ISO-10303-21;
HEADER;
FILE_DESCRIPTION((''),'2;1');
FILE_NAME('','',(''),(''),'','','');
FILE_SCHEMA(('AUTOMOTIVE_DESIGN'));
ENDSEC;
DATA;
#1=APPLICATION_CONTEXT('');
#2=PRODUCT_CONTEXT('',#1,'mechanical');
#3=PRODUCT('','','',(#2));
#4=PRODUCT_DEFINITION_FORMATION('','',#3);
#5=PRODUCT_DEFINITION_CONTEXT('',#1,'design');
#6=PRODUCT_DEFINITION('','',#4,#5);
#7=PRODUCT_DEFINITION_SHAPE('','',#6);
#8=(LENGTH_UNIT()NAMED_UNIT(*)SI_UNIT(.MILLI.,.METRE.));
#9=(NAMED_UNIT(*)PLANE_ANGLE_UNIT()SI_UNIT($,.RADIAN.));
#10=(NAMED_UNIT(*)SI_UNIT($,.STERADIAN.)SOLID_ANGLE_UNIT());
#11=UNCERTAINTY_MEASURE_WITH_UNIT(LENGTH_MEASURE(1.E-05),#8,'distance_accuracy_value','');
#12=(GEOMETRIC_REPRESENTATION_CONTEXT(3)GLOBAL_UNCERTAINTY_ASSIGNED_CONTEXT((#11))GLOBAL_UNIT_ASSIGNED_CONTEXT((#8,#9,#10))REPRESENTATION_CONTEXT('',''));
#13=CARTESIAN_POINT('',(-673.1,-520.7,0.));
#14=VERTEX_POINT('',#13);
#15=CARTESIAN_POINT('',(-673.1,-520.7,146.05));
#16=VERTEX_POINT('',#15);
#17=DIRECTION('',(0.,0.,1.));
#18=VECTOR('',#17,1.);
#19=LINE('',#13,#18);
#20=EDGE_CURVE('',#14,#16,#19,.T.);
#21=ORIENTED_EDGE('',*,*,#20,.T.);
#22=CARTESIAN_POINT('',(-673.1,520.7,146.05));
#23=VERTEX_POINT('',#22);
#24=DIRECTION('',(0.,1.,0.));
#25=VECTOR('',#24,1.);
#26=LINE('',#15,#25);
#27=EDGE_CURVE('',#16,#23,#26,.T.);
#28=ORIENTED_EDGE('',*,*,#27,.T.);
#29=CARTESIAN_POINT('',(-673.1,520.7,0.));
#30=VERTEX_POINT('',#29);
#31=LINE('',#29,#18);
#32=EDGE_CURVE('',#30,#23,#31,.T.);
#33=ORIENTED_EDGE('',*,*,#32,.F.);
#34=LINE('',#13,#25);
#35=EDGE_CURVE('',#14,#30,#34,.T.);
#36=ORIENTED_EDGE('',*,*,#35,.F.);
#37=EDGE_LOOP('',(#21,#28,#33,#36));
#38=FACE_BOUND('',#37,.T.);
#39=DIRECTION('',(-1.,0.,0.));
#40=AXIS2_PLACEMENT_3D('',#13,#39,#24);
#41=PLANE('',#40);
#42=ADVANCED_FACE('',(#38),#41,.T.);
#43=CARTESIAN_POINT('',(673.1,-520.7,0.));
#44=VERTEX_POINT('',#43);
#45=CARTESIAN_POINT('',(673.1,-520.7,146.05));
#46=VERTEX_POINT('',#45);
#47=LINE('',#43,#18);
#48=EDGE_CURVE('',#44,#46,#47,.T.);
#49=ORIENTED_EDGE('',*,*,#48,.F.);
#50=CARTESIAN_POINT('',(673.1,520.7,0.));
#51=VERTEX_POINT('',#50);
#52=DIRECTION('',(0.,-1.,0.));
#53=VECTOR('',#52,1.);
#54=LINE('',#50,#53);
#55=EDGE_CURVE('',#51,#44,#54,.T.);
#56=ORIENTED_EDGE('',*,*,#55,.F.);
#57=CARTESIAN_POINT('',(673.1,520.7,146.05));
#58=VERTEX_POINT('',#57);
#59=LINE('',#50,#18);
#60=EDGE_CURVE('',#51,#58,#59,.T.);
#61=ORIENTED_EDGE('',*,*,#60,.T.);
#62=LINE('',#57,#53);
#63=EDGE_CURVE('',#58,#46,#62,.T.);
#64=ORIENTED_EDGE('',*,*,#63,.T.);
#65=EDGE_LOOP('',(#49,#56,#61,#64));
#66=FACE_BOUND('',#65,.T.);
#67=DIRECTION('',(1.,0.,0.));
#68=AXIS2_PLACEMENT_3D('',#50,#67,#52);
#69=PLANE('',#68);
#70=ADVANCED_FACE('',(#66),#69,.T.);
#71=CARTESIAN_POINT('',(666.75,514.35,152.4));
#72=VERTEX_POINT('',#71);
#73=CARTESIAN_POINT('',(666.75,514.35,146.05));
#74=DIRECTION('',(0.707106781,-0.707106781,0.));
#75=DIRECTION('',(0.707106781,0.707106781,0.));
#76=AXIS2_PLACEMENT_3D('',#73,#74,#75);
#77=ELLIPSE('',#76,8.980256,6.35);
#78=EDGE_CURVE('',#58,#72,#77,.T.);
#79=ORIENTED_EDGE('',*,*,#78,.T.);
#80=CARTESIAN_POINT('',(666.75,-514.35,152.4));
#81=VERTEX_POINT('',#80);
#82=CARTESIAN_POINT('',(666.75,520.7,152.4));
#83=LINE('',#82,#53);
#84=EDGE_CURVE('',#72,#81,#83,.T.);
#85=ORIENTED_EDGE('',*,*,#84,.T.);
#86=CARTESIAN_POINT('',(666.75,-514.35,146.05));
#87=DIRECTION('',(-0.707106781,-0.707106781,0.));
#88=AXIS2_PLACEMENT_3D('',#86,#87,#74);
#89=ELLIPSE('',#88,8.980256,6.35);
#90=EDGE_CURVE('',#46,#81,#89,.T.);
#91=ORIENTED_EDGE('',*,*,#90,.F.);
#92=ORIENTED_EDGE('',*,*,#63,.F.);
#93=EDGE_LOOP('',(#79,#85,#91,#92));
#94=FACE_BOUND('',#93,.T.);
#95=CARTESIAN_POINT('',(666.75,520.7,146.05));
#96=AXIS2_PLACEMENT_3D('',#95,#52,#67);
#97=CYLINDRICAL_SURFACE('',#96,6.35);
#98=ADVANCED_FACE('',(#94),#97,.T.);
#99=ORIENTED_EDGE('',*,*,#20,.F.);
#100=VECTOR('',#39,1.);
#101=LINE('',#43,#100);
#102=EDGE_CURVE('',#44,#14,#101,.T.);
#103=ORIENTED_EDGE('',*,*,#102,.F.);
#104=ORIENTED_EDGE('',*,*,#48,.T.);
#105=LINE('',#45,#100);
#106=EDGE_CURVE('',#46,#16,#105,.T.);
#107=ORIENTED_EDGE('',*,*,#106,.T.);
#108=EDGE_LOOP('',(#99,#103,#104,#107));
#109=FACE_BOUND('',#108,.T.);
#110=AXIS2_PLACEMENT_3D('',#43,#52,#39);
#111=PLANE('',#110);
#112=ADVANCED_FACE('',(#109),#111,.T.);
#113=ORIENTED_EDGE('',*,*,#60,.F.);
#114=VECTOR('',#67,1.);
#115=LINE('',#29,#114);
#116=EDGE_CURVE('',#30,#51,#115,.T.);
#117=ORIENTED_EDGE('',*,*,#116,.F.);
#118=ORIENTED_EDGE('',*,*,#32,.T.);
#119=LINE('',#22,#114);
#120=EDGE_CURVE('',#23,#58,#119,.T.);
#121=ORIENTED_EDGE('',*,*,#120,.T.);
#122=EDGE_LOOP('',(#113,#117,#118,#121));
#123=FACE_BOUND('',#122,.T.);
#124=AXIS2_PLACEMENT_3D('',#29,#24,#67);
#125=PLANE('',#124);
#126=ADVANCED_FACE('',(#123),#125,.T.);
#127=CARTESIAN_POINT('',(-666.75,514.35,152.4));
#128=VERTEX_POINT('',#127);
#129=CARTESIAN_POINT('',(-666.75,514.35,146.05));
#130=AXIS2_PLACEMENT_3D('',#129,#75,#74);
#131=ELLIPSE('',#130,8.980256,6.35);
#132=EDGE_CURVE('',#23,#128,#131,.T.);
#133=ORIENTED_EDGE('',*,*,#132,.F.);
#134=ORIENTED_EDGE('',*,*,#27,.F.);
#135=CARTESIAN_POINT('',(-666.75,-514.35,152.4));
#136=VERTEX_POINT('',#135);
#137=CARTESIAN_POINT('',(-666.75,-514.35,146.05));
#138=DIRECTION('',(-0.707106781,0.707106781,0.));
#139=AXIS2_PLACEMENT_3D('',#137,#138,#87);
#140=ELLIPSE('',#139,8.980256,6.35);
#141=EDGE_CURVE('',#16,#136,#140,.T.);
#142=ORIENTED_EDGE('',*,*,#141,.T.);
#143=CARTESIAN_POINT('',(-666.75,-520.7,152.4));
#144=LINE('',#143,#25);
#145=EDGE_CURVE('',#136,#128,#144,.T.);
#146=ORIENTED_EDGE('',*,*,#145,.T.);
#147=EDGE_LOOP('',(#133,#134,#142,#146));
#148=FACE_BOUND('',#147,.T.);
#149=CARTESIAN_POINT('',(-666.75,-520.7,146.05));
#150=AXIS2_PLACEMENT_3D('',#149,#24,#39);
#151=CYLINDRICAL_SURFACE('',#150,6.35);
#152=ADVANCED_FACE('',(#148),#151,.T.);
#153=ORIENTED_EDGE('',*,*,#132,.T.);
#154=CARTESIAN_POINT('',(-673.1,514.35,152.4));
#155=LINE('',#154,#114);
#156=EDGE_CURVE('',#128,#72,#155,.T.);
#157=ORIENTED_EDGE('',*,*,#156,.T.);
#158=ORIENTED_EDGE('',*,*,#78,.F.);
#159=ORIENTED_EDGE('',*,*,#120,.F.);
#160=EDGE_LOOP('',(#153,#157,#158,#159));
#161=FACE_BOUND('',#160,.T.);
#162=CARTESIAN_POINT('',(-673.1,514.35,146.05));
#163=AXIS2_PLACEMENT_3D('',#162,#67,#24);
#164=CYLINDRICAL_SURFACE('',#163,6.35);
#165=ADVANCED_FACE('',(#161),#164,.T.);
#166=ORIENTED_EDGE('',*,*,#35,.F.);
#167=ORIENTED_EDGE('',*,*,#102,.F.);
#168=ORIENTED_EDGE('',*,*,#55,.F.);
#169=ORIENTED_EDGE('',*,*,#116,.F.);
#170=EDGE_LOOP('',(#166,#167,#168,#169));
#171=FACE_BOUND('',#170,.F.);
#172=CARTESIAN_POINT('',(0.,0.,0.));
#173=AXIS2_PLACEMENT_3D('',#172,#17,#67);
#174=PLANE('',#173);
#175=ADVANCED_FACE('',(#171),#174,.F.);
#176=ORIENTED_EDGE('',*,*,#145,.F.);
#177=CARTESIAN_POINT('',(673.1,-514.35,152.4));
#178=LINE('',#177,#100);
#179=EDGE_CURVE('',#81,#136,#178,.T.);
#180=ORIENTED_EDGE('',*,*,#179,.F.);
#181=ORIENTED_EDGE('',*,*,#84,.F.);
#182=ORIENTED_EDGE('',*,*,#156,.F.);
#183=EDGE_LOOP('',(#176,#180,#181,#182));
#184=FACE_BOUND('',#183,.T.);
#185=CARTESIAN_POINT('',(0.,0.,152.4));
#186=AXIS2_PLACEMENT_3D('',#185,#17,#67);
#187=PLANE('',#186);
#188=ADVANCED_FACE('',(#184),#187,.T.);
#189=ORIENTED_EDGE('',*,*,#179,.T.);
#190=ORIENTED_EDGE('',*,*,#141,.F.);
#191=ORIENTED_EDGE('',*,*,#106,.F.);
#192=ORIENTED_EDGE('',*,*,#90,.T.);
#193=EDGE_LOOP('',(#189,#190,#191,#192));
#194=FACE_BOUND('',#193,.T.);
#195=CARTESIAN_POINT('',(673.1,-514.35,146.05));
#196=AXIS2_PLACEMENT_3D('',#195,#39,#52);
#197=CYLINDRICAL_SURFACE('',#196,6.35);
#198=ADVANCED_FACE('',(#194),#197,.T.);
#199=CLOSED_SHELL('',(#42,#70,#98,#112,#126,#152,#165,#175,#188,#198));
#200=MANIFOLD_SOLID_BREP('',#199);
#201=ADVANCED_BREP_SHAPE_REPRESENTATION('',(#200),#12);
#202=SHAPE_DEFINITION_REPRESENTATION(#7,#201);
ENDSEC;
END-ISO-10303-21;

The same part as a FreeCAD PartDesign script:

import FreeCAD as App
import Part
import Sketcher
from FreeCAD import Vector
Q = App.Units.Quantity


def edges_at(feature, points):
    """Names of the edges that pass closest to the given points."""
    edges = feature.Shape.Edges
    near = lambda p: min(range(len(edges)), key=lambda i: edges[i].distToShape(Part.Vertex(*p))[0])
    return sorted({f"Edge{near(p) + 1}" for p in points})


def add_polygon(sketch, points):
    """Adds a closed chain of lines whose ends are joined by coincident constraints."""
    first, n = sketch.GeometryCount, len(points)
    for a, b in zip(points, points[1:] + points[:1]):
        sketch.addGeometry(Part.LineSegment(App.Vector(*a, 0), App.Vector(*b, 0)), False)
    for i in range(n):
        sketch.addConstraint(Sketcher.Constraint("Coincident", first + i, 2, first + (i + 1) % n, 1))

doc = App.newDocument("Part")
body = doc.addObject("PartDesign::Body", "Body")

# Sketch on XY plane
sketch1 = body.newObject("Sketcher::SketchObject", "Sketch")
sketch1.AttachmentSupport = (doc.getObject("XY_Plane"), [""])
sketch1.MapMode = "FlatFace"
add_polygon(sketch1, [(673, 521), (-673, 521), (-673, -521), (673, -521)])  # lines 0-3
sketch1.addConstraint([
    Sketcher.Constraint("Horizontal", 0),
    Sketcher.Constraint("Vertical", 1),
    Sketcher.Constraint("Horizontal", 2),
    Sketcher.Constraint("Vertical", 3),
    Sketcher.Constraint("Symmetric", 0, 2, 2, 2, -1, 1),
    Sketcher.Constraint("DistanceX", 0, 2, 0, 1, Q("53 in")),
    Sketcher.Constraint("DistanceY", 1, 2, 1, 1, Q("41 in")),
])
pad1 = body.newObject("PartDesign::Pad", "Pad")
pad1.Profile = sketch1
pad1.Length = Q("6 in")
doc.recompute()

fillet = body.newObject("PartDesign::Fillet", "Fillet")
fillet.Base = (pad1, edges_at(pad1, [
    (0, 520.7, 152.4),
    (673.1, 0, 152.4),
    (0, -520.7, 152.4),
    (-673.1, 0, 152.4),
]))
fillet.Radius = Q("0.25 in")

doc.recompute()
